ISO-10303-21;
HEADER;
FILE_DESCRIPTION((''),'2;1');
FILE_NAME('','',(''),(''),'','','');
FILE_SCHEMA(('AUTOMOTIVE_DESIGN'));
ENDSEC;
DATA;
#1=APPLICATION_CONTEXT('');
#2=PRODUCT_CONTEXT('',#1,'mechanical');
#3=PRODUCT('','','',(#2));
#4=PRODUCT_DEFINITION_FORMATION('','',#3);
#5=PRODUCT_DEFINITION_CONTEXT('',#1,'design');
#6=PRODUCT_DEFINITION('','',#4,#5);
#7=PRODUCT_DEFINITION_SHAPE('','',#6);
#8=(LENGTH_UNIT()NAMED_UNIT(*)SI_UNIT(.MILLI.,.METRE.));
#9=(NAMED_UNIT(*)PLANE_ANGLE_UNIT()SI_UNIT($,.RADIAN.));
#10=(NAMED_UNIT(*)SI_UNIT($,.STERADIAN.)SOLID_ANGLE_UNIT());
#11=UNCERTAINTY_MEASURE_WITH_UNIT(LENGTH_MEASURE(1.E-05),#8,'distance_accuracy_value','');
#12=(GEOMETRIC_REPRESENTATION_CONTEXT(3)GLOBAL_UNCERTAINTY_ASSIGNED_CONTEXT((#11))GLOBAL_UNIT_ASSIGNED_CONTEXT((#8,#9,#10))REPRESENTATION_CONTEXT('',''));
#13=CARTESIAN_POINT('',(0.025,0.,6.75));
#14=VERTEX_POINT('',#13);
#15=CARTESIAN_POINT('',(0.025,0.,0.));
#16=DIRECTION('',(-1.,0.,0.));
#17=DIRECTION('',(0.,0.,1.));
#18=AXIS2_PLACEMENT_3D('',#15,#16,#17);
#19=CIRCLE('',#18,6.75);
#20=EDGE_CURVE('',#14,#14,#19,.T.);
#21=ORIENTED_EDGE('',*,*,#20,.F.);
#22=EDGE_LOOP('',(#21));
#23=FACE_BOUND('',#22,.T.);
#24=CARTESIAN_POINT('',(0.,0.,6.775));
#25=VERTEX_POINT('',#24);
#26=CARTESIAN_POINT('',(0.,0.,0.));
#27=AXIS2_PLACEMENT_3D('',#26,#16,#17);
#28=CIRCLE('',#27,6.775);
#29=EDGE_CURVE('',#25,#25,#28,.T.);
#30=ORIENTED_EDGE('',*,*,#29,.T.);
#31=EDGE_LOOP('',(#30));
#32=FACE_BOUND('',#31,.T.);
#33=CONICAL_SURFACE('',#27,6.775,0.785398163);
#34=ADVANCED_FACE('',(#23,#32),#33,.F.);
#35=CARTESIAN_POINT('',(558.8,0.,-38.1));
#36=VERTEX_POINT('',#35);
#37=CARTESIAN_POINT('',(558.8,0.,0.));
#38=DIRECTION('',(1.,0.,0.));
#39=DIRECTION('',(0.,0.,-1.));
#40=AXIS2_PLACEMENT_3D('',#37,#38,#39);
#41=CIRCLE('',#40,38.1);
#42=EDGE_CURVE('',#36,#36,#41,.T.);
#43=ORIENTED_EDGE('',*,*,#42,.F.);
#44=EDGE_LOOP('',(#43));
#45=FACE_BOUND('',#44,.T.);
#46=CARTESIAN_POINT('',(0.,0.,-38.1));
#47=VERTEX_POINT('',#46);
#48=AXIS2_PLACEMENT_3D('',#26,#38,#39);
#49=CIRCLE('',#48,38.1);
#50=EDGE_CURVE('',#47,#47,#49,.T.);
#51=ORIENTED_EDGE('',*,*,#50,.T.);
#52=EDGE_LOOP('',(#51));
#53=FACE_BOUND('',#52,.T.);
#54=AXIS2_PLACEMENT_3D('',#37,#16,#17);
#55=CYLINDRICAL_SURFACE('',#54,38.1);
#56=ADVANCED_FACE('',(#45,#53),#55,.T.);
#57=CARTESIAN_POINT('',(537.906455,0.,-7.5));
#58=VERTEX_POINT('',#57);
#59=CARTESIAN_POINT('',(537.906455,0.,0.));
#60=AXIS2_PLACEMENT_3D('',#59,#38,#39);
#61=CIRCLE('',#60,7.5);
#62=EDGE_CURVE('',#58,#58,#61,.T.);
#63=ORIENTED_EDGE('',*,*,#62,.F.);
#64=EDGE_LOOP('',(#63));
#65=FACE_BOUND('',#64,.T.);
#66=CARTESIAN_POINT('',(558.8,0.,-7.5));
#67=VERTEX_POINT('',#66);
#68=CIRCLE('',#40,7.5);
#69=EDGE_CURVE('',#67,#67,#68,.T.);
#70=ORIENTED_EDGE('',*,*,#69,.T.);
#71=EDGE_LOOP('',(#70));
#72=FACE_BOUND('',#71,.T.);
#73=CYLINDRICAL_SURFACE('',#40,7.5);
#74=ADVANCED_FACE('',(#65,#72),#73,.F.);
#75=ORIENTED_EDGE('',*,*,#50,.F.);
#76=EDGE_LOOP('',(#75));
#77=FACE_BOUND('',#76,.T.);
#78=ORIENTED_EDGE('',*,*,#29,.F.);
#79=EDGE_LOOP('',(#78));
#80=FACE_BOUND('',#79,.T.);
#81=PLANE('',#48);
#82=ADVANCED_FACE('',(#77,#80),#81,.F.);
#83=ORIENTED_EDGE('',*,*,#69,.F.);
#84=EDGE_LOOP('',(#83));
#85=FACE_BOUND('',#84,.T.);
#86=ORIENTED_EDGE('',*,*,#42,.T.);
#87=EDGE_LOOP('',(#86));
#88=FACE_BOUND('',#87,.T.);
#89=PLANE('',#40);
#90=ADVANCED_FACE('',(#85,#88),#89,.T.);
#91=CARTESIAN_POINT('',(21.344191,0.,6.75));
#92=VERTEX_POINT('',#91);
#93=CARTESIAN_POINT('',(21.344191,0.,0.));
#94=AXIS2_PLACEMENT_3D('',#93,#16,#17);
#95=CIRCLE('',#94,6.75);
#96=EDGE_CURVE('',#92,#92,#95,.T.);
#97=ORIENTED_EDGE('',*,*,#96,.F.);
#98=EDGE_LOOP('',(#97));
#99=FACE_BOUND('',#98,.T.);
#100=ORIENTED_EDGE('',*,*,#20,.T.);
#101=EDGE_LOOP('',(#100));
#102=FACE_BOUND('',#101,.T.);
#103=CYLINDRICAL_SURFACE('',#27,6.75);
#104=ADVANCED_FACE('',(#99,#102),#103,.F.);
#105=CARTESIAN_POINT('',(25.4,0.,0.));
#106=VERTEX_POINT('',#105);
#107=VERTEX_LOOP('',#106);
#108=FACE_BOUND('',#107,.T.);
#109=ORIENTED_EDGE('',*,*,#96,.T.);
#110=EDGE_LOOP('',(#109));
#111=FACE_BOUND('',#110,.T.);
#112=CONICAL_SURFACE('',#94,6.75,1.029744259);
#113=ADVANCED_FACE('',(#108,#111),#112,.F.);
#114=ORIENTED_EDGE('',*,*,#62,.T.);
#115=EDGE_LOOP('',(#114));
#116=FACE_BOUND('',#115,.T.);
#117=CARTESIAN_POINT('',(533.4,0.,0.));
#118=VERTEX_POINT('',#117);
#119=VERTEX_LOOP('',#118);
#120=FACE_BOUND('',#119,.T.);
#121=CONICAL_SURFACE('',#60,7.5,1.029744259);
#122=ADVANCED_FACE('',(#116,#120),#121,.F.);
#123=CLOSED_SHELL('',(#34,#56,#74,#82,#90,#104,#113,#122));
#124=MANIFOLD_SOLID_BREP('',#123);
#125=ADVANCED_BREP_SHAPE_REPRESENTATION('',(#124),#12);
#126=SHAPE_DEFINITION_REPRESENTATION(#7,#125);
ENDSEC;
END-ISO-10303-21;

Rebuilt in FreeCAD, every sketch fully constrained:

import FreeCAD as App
import Part
import Sketcher
from FreeCAD import Vector

doc = App.newDocument("Part")
body = doc.addObject("PartDesign::Body", "Body")

# Sketch on YZ plane
sketch1 = body.newObject("Sketcher::SketchObject", "Sketch")
sketch1.AttachmentSupport = (doc.getObject("YZ_Plane"), [""])
sketch1.MapMode = "FlatFace"
sketch1.addGeometry(Part.Circle(Vector(0, 0, 0), Vector(0, 0, 1), 38), False)
sketch1.addConstraint([
    Sketcher.Constraint("Coincident", 0, 3, -1, 1),
    Sketcher.Constraint("Diameter", 0, 76.2),
])
pad1 = body.newObject("PartDesign::Pad", "Pad")
pad1.Profile = sketch1
pad1.Length = 558.8

# Sketch on YZ plane
sketch2 = body.newObject("Sketcher::SketchObject", "Sketch001")
sketch2.AttachmentSupport = (doc.getObject("YZ_Plane"), [""])
sketch2.MapMode = "FlatFace"
sketch2.addGeometry(Part.Circle(Vector(0, 0, 0), Vector(0, 0, 1), 7), False)
sketch2.addConstraint([
    Sketcher.Constraint("Coincident", 0, 3, -1, 1),
    Sketcher.Constraint("Diameter", 0, 13.5),
])
doc.recompute()
hole = body.newObject("PartDesign::Hole", "Hole")
hole.Profile = sketch2
hole.ThreadType = "None"
hole.Diameter = 13.5
hole.DepthType = "Dimension"
hole.Depth = 21.344191
hole.DrillPoint = "Angled"
hole.DrillPointAngle = 118
hole.HoleCutType = "Countersink"
hole.HoleCutDiameter = 13.55
hole.HoleCutCountersinkAngle = 90
hole.Reversed = True

# Sketch on YZ plane
sketch3 = body.newObject("Sketcher::SketchObject", "Sketch002")
sketch3.AttachmentSupport = (doc.getObject("YZ_Plane"), [""])
sketch3.MapMode = "FlatFace"
sketch3.AttachmentOffset = App.Placement(Vector(0, 0, 558.8), App.Rotation())
sketch3.addGeometry(Part.Circle(Vector(0, 0, 0), Vector(0, 0, 1), 8), False)
sketch3.addConstraint([
    Sketcher.Constraint("Coincident", 0, 3, -1, 1),
    Sketcher.Constraint("Diameter", 0, 15.0),
])
doc.recompute()
hole2 = body.newObject("PartDesign::Hole", "Hole001")
hole2.Profile = sketch3
hole2.ThreadType = "None"
hole2.Diameter = 15
hole2.DepthType = "Dimension"
hole2.Depth = 20.893545
hole2.DrillPoint = "Angled"
hole2.DrillPointAngle = 118

doc.recompute()
